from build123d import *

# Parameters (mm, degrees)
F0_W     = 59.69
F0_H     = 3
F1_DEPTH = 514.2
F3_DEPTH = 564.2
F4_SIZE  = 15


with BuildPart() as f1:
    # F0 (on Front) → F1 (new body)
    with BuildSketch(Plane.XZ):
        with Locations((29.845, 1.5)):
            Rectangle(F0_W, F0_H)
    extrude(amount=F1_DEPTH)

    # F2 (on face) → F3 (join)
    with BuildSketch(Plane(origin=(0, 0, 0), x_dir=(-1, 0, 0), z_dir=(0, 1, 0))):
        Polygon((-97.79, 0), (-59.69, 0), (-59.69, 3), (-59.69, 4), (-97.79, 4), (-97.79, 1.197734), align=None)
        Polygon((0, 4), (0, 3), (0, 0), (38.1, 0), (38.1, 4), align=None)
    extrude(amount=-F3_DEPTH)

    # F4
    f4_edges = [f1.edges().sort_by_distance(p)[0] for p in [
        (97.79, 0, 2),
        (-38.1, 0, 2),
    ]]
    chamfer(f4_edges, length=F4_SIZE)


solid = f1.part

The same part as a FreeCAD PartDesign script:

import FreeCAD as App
import Part
import Sketcher


def edges_at(feature, points):
    """Names of the edges that pass closest to the given points."""
    edges = feature.Shape.Edges
    near = lambda p: min(range(len(edges)), key=lambda i: edges[i].distToShape(Part.Vertex(*p))[0])
    return sorted({f"Edge{near(p) + 1}" for p in points})


def add_polygon(sketch, points):
    """Adds a closed chain of lines whose ends are joined by coincident constraints."""
    first, n = sketch.GeometryCount, len(points)
    for a, b in zip(points, points[1:] + points[:1]):
        sketch.addGeometry(Part.LineSegment(App.Vector(*a, 0), App.Vector(*b, 0)), False)
    for i in range(n):
        sketch.addConstraint(Sketcher.Constraint("Coincident", first + i, 2, first + (i + 1) % n, 1))

doc = App.newDocument("Part")
body = doc.addObject("PartDesign::Body", "Body")

# Sketch on XZ plane
sketch1 = body.newObject("Sketcher::SketchObject", "Sketch")
sketch1.AttachmentSupport = (doc.getObject("XZ_Plane"), [""])
sketch1.MapMode = "FlatFace"
add_polygon(sketch1, [(0, 3), (0, 0), (59.69, 0), (59.69, 3)])  # lines 0-3
sketch1.addConstraint(Sketcher.Constraint("Vertical", 0))
sketch1.addConstraint(Sketcher.Constraint("Horizontal", 1))
sketch1.addConstraint(Sketcher.Constraint("Vertical", 2))
sketch1.addConstraint(Sketcher.Constraint("Horizontal", 3))
sketch1.addConstraint(Sketcher.Constraint("Coincident", 0, 2, -1, 1))
sketch1.addConstraint(Sketcher.Constraint("DistanceY", 0, 2, 0, 1, 3.0))
sketch1.addConstraint(Sketcher.Constraint("DistanceX", 1, 1, 1, 2, 59.69))
pad1 = body.newObject("PartDesign::Pad", "Pad")
pad1.Profile = sketch1
pad1.Length = 514.2

# Sketch on XZ plane
sketch2 = body.newObject("Sketcher::SketchObject", "Sketch001")
sketch2.AttachmentSupport = (doc.getObject("XZ_Plane"), [""])
sketch2.MapMode = "FlatFace"
add_polygon(sketch2, [(97.79, 0), (59.69, 0), (59.69, 4), (97.79, 4)])  # lines 0-3
add_polygon(sketch2, [(0, 4), (0, 0), (-38.1, 0), (-38.1, 4)])  # lines 4-7
sketch2.addConstraint(Sketcher.Constraint("Horizontal", 0))
sketch2.addConstraint(Sketcher.Constraint("Vertical", 1))
sketch2.addConstraint(Sketcher.Constraint("Horizontal", 2))
sketch2.addConstraint(Sketcher.Constraint("Vertical", 3))
sketch2.addConstraint(Sketcher.Constraint("Vertical", 4))
sketch2.addConstraint(Sketcher.Constraint("Horizontal", 5))
sketch2.addConstraint(Sketcher.Constraint("Vertical", 6))
sketch2.addConstraint(Sketcher.Constraint("Horizontal", 7))
sketch2.addConstraint(Sketcher.Constraint("Coincident", 4, 2, -1, 1))
sketch2.addConstraint(Sketcher.Constraint("PointOnObject", 0, 2, -1))
sketch2.addConstraint(Sketcher.Constraint("Horizontal", 2, 2, 6, 2))
sketch2.addConstraint(Sketcher.Constraint("Equal", 2, 5))
sketch2.addConstraint(Sketcher.Constraint("DistanceY", 1, 1, 1, 2, 4.0))
sketch2.addConstraint(Sketcher.Constraint("DistanceX", 0, 2, 0, 1, 38.1))
sketch2.addConstraint(Sketcher.Constraint("DistanceX", -1, 1, 0, 2, 59.69))
pad2 = body.newObject("PartDesign::Pad", "Pad001")
pad2.Profile = sketch2
pad2.Length = 564.2
doc.recompute()

chamfer = body.newObject("PartDesign::Chamfer", "Chamfer")
chamfer.Base = (pad2, edges_at(pad2, [(97.79, 0, 2), (-38.1, 0, 2)]))
chamfer.Size = 15

doc.recompute()
